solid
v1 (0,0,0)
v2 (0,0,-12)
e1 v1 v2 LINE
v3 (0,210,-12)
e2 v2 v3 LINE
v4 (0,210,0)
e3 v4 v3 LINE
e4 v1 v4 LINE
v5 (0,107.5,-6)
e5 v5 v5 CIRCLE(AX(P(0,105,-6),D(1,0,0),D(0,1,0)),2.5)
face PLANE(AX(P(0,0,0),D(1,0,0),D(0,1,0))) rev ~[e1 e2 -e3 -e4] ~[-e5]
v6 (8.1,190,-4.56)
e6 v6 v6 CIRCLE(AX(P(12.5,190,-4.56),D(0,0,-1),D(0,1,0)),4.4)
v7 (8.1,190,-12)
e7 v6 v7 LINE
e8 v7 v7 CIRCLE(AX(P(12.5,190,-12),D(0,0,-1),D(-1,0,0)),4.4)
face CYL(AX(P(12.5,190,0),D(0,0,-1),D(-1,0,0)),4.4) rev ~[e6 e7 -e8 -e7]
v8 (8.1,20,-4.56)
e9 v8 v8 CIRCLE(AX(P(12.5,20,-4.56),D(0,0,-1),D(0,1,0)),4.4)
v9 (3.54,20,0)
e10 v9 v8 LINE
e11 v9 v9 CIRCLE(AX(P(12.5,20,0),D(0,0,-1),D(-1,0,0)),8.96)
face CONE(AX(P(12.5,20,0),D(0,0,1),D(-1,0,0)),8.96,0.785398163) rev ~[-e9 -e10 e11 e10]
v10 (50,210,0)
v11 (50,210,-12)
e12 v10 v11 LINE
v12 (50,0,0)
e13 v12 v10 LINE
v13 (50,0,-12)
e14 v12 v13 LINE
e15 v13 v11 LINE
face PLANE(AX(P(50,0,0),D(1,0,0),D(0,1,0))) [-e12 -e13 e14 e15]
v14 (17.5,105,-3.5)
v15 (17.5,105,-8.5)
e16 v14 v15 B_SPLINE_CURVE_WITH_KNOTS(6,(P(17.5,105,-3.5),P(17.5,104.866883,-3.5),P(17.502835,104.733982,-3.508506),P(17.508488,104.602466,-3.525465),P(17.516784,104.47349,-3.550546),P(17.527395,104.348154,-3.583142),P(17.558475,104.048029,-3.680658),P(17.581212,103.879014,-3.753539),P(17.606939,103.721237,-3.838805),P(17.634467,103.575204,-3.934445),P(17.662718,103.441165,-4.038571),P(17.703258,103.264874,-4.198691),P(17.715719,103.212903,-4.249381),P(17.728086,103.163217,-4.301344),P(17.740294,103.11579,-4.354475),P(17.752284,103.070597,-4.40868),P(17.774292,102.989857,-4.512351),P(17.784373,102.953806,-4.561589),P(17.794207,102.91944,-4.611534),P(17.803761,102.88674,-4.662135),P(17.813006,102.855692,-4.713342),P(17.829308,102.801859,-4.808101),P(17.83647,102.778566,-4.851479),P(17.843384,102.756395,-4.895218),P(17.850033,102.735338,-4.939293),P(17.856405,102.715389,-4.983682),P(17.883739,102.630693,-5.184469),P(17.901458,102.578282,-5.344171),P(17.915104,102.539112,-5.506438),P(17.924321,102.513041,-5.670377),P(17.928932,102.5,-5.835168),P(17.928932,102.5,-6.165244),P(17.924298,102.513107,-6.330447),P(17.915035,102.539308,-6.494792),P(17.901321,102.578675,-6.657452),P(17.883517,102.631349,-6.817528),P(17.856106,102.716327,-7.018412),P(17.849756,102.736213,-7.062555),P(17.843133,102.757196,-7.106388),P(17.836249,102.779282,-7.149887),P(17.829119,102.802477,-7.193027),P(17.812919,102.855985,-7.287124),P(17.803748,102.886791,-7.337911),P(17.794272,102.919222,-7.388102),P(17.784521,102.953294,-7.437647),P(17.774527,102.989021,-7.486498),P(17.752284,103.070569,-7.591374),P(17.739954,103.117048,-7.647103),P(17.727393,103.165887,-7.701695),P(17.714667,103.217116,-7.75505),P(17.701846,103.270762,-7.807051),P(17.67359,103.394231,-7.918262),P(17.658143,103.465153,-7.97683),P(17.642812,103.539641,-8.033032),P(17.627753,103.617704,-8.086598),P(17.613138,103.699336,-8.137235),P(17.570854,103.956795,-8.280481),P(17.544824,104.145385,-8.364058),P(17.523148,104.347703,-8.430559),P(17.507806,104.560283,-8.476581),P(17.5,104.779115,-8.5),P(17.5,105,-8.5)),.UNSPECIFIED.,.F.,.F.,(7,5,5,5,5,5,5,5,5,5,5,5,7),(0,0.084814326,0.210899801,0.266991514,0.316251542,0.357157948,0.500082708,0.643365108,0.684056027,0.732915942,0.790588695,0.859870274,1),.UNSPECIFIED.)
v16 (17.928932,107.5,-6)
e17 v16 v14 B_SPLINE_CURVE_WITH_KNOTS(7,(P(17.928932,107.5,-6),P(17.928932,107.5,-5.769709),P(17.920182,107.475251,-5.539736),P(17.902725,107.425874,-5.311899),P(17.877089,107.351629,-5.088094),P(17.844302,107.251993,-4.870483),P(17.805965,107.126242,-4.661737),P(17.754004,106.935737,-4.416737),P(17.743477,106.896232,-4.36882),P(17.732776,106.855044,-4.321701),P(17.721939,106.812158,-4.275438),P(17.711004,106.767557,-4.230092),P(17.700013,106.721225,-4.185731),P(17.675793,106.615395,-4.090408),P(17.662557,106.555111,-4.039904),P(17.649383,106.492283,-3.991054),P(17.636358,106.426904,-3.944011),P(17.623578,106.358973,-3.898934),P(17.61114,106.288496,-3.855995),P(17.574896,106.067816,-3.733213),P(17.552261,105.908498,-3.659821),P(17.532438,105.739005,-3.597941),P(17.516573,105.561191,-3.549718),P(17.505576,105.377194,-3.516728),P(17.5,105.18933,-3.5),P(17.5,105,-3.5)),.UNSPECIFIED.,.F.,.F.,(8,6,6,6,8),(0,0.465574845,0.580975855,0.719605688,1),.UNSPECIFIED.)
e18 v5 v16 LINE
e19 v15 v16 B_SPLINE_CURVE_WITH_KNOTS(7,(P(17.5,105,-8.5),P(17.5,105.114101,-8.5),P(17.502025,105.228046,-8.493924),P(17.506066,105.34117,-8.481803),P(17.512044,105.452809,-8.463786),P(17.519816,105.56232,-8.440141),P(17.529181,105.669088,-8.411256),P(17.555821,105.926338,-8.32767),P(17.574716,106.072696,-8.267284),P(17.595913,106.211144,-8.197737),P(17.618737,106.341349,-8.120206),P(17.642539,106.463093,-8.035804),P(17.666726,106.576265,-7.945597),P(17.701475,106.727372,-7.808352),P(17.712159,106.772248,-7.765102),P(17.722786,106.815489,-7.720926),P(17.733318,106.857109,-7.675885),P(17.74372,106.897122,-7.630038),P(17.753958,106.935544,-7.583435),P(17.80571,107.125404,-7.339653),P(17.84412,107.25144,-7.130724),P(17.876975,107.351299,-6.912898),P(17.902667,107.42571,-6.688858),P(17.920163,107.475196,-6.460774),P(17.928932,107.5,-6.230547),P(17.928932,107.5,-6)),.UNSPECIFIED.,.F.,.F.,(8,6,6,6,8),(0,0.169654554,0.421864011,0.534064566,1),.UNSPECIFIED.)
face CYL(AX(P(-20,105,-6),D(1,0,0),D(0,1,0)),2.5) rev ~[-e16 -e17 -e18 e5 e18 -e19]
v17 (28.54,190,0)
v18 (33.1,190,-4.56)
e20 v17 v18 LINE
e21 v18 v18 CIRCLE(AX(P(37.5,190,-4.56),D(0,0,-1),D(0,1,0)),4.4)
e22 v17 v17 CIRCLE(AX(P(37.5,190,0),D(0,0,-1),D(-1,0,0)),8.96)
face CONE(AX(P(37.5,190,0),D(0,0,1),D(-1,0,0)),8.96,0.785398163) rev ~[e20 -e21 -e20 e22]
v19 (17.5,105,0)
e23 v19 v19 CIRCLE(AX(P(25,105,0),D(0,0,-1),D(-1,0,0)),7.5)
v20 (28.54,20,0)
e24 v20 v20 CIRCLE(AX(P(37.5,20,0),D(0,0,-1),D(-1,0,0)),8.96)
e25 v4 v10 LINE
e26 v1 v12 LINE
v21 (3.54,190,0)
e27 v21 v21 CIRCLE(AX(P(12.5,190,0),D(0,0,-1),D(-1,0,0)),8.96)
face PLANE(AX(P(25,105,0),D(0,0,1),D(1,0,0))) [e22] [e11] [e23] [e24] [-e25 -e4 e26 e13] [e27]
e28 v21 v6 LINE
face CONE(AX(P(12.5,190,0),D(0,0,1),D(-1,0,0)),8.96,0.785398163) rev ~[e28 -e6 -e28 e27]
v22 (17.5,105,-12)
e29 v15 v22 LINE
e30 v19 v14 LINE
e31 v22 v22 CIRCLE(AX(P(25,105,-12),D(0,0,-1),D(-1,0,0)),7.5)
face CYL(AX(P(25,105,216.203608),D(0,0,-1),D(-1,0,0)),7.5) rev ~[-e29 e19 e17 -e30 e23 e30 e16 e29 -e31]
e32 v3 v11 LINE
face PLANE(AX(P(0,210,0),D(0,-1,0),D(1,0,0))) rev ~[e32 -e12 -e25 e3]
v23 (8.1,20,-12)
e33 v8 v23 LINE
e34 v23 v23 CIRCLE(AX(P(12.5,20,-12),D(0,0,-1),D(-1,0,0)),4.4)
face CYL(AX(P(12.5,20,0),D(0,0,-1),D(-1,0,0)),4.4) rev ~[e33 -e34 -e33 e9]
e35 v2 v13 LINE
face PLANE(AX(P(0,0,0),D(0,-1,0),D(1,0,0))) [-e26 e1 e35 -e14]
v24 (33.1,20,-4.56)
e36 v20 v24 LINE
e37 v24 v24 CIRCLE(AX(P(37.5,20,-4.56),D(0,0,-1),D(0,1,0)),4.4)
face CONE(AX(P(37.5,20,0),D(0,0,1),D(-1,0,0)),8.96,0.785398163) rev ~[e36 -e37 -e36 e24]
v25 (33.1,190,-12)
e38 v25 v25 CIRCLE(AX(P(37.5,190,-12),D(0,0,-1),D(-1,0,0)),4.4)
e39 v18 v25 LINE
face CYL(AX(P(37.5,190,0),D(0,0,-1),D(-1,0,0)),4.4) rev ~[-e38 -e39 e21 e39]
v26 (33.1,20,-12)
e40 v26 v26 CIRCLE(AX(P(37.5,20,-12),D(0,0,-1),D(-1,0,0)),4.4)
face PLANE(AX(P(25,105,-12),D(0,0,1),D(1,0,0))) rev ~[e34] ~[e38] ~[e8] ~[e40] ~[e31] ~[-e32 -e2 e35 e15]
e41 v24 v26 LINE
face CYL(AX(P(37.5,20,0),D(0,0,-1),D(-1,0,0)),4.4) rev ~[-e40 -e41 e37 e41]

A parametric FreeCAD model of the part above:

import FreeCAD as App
import Part
import Sketcher

doc = App.newDocument("Part")
body = doc.addObject("PartDesign::Body", "Body")

sketch1 = body.newObject("Sketcher::SketchObject", "Sketch")
sketch1.AttachmentSupport = (doc.getObject("XY_Plane"), [""])
sketch1.MapMode = "FlatFace"
sketch1.addGeometry(Part.LineSegment(App.Vector(0, 210, 0), App.Vector(0, 0, 0)), False)
sketch1.addGeometry(Part.LineSegment(App.Vector(0, 0, 0), App.Vector(50, 0, 0)), False)
sketch1.addGeometry(Part.LineSegment(App.Vector(50, 0, 0), App.Vector(50, 210, 0)), False)
sketch1.addGeometry(Part.LineSegment(App.Vector(50, 210, 0), App.Vector(0, 210, 0)), False)
sketch1.addConstraint(Sketcher.Constraint("Coincident", 0, 2, 1, 1))
sketch1.addConstraint(Sketcher.Constraint("Coincident", 1, 2, 2, 1))
sketch1.addConstraint(Sketcher.Constraint("Coincident", 2, 2, 3, 1))
sketch1.addConstraint(Sketcher.Constraint("Coincident", 3, 2, 0, 1))
sketch1.addConstraint(Sketcher.Constraint("Vertical", 0))
sketch1.addConstraint(Sketcher.Constraint("Horizontal", 1))
sketch1.addConstraint(Sketcher.Constraint("Vertical", 2))
sketch1.addConstraint(Sketcher.Constraint("Horizontal", 3))
sketch1.addConstraint(Sketcher.Constraint("Coincident", 0, 2, -1, 1))
sketch1.addConstraint(Sketcher.Constraint("DistanceX", 1, 1, 1, 2, 50.0))
sketch1.addConstraint(Sketcher.Constraint("DistanceY", 0, 2, 0, 1, 210.0))
pad1 = body.newObject("PartDesign::Pad", "Pad")
pad1.Profile = sketch1
pad1.Length = 12
pad1.Reversed = True

sketch2 = body.newObject("Sketcher::SketchObject", "Sketch001")
sketch2.AttachmentSupport = (doc.getObject("XY_Plane"), [""])
sketch2.MapMode = "FlatFace"
sketch2.addGeometry(Part.Circle(App.Vector(12.5, 20, 0), App.Vector(0, 0, 1), 4.4), False)
sketch2.addGeometry(Part.Circle(App.Vector(37.5, 20, 0), App.Vector(0, 0, 1), 4.4), False)
sketch2.addGeometry(Part.Circle(App.Vector(37.5, 190, 0), App.Vector(0, 0, 1), 4.4), False)
sketch2.addGeometry(Part.Circle(App.Vector(12.5, 190, 0), App.Vector(0, 0, 1), 4.4), False)
sketch2.addConstraint(Sketcher.Constraint("Equal", 0, 1))
sketch2.addConstraint(Sketcher.Constraint("Equal", 1, 2))
sketch2.addConstraint(Sketcher.Constraint("Equal", 2, 3))
sketch2.addConstraint(Sketcher.Constraint("Horizontal", 0, 3, 1, 3))
sketch2.addConstraint(Sketcher.Constraint("Horizontal", 2, 3, 3, 3))
sketch2.addConstraint(Sketcher.Constraint("Vertical", 1, 3, 2, 3))
sketch2.addConstraint(Sketcher.Constraint("Vertical", 0, 3, 3, 3))
sketch2.addConstraint(Sketcher.Constraint("Diameter", 0, 8.8))
sketch2.addConstraint(Sketcher.Constraint("DistanceY", -1, 1, 0, 3, 20.0))
sketch2.addConstraint(Sketcher.Constraint("DistanceY", -1, 1, 2, 3, 190.0))
sketch2.addConstraint(Sketcher.Constraint("DistanceX", 0, 3, 1, 3, 25.0))
sketch2.addConstraint(Sketcher.Constraint("DistanceX", -1, 1, 0, 3, 12.5))
doc.recompute()
hole = body.newObject("PartDesign::Hole", "Hole")
hole.Profile = sketch2
hole.ThreadType = "None"
hole.Diameter = 8.8
hole.DepthType = "ThroughAll"
hole.HoleCutType = "Countersink"
hole.HoleCutDiameter = 17.92
hole.HoleCutCountersinkAngle = 90

sketch3 = body.newObject("Sketcher::SketchObject", "Sketch002")
sketch3.AttachmentSupport = (doc.getObject("XY_Plane"), [""])
sketch3.MapMode = "FlatFace"
sketch3.addGeometry(Part.Circle(App.Vector(25, 105, 0), App.Vector(0, 0, 1), 7.5), False)
sketch3.addConstraint(Sketcher.Constraint("Diameter", 0, 15.0))
sketch3.addConstraint(Sketcher.Constraint("DistanceX", -1, 1, 0, 3, 25.0))
sketch3.addConstraint(Sketcher.Constraint("DistanceY", -1, 1, 0, 3, 105.0))
doc.recompute()
hole2 = body.newObject("PartDesign::Hole", "Hole001")
hole2.Profile = sketch3
hole2.ThreadType = "None"
hole2.Diameter = 15
hole2.DepthType = "ThroughAll"

sketch4 = body.newObject("Sketcher::SketchObject", "Sketch003")
sketch4.AttachmentSupport = (doc.getObject("YZ_Plane"), [""])
sketch4.MapMode = "FlatFace"
sketch4.addGeometry(Part.Circle(App.Vector(105, -6, 0), App.Vector(0, 0, 1), 2.5), False)
sketch4.addConstraint(Sketcher.Constraint("Diameter", 0, 5.0))
sketch4.addConstraint(Sketcher.Constraint("DistanceX", -1, 1, 0, 3, 105.0))
sketch4.addConstraint(Sketcher.Constraint("DistanceY", 0, 3, -1, 1, 6.0))
doc.recompute()
hole3 = body.newObject("PartDesign::Hole", "Hole002")
hole3.Profile = sketch4
hole3.ThreadType = "None"
hole3.Diameter = 5
hole3.DepthType = "Dimension"
hole3.Depth = 20
hole3.DrillPoint = "Angled"
hole3.DrillPointAngle = 118
hole3.Reversed = True

doc.recompute()
